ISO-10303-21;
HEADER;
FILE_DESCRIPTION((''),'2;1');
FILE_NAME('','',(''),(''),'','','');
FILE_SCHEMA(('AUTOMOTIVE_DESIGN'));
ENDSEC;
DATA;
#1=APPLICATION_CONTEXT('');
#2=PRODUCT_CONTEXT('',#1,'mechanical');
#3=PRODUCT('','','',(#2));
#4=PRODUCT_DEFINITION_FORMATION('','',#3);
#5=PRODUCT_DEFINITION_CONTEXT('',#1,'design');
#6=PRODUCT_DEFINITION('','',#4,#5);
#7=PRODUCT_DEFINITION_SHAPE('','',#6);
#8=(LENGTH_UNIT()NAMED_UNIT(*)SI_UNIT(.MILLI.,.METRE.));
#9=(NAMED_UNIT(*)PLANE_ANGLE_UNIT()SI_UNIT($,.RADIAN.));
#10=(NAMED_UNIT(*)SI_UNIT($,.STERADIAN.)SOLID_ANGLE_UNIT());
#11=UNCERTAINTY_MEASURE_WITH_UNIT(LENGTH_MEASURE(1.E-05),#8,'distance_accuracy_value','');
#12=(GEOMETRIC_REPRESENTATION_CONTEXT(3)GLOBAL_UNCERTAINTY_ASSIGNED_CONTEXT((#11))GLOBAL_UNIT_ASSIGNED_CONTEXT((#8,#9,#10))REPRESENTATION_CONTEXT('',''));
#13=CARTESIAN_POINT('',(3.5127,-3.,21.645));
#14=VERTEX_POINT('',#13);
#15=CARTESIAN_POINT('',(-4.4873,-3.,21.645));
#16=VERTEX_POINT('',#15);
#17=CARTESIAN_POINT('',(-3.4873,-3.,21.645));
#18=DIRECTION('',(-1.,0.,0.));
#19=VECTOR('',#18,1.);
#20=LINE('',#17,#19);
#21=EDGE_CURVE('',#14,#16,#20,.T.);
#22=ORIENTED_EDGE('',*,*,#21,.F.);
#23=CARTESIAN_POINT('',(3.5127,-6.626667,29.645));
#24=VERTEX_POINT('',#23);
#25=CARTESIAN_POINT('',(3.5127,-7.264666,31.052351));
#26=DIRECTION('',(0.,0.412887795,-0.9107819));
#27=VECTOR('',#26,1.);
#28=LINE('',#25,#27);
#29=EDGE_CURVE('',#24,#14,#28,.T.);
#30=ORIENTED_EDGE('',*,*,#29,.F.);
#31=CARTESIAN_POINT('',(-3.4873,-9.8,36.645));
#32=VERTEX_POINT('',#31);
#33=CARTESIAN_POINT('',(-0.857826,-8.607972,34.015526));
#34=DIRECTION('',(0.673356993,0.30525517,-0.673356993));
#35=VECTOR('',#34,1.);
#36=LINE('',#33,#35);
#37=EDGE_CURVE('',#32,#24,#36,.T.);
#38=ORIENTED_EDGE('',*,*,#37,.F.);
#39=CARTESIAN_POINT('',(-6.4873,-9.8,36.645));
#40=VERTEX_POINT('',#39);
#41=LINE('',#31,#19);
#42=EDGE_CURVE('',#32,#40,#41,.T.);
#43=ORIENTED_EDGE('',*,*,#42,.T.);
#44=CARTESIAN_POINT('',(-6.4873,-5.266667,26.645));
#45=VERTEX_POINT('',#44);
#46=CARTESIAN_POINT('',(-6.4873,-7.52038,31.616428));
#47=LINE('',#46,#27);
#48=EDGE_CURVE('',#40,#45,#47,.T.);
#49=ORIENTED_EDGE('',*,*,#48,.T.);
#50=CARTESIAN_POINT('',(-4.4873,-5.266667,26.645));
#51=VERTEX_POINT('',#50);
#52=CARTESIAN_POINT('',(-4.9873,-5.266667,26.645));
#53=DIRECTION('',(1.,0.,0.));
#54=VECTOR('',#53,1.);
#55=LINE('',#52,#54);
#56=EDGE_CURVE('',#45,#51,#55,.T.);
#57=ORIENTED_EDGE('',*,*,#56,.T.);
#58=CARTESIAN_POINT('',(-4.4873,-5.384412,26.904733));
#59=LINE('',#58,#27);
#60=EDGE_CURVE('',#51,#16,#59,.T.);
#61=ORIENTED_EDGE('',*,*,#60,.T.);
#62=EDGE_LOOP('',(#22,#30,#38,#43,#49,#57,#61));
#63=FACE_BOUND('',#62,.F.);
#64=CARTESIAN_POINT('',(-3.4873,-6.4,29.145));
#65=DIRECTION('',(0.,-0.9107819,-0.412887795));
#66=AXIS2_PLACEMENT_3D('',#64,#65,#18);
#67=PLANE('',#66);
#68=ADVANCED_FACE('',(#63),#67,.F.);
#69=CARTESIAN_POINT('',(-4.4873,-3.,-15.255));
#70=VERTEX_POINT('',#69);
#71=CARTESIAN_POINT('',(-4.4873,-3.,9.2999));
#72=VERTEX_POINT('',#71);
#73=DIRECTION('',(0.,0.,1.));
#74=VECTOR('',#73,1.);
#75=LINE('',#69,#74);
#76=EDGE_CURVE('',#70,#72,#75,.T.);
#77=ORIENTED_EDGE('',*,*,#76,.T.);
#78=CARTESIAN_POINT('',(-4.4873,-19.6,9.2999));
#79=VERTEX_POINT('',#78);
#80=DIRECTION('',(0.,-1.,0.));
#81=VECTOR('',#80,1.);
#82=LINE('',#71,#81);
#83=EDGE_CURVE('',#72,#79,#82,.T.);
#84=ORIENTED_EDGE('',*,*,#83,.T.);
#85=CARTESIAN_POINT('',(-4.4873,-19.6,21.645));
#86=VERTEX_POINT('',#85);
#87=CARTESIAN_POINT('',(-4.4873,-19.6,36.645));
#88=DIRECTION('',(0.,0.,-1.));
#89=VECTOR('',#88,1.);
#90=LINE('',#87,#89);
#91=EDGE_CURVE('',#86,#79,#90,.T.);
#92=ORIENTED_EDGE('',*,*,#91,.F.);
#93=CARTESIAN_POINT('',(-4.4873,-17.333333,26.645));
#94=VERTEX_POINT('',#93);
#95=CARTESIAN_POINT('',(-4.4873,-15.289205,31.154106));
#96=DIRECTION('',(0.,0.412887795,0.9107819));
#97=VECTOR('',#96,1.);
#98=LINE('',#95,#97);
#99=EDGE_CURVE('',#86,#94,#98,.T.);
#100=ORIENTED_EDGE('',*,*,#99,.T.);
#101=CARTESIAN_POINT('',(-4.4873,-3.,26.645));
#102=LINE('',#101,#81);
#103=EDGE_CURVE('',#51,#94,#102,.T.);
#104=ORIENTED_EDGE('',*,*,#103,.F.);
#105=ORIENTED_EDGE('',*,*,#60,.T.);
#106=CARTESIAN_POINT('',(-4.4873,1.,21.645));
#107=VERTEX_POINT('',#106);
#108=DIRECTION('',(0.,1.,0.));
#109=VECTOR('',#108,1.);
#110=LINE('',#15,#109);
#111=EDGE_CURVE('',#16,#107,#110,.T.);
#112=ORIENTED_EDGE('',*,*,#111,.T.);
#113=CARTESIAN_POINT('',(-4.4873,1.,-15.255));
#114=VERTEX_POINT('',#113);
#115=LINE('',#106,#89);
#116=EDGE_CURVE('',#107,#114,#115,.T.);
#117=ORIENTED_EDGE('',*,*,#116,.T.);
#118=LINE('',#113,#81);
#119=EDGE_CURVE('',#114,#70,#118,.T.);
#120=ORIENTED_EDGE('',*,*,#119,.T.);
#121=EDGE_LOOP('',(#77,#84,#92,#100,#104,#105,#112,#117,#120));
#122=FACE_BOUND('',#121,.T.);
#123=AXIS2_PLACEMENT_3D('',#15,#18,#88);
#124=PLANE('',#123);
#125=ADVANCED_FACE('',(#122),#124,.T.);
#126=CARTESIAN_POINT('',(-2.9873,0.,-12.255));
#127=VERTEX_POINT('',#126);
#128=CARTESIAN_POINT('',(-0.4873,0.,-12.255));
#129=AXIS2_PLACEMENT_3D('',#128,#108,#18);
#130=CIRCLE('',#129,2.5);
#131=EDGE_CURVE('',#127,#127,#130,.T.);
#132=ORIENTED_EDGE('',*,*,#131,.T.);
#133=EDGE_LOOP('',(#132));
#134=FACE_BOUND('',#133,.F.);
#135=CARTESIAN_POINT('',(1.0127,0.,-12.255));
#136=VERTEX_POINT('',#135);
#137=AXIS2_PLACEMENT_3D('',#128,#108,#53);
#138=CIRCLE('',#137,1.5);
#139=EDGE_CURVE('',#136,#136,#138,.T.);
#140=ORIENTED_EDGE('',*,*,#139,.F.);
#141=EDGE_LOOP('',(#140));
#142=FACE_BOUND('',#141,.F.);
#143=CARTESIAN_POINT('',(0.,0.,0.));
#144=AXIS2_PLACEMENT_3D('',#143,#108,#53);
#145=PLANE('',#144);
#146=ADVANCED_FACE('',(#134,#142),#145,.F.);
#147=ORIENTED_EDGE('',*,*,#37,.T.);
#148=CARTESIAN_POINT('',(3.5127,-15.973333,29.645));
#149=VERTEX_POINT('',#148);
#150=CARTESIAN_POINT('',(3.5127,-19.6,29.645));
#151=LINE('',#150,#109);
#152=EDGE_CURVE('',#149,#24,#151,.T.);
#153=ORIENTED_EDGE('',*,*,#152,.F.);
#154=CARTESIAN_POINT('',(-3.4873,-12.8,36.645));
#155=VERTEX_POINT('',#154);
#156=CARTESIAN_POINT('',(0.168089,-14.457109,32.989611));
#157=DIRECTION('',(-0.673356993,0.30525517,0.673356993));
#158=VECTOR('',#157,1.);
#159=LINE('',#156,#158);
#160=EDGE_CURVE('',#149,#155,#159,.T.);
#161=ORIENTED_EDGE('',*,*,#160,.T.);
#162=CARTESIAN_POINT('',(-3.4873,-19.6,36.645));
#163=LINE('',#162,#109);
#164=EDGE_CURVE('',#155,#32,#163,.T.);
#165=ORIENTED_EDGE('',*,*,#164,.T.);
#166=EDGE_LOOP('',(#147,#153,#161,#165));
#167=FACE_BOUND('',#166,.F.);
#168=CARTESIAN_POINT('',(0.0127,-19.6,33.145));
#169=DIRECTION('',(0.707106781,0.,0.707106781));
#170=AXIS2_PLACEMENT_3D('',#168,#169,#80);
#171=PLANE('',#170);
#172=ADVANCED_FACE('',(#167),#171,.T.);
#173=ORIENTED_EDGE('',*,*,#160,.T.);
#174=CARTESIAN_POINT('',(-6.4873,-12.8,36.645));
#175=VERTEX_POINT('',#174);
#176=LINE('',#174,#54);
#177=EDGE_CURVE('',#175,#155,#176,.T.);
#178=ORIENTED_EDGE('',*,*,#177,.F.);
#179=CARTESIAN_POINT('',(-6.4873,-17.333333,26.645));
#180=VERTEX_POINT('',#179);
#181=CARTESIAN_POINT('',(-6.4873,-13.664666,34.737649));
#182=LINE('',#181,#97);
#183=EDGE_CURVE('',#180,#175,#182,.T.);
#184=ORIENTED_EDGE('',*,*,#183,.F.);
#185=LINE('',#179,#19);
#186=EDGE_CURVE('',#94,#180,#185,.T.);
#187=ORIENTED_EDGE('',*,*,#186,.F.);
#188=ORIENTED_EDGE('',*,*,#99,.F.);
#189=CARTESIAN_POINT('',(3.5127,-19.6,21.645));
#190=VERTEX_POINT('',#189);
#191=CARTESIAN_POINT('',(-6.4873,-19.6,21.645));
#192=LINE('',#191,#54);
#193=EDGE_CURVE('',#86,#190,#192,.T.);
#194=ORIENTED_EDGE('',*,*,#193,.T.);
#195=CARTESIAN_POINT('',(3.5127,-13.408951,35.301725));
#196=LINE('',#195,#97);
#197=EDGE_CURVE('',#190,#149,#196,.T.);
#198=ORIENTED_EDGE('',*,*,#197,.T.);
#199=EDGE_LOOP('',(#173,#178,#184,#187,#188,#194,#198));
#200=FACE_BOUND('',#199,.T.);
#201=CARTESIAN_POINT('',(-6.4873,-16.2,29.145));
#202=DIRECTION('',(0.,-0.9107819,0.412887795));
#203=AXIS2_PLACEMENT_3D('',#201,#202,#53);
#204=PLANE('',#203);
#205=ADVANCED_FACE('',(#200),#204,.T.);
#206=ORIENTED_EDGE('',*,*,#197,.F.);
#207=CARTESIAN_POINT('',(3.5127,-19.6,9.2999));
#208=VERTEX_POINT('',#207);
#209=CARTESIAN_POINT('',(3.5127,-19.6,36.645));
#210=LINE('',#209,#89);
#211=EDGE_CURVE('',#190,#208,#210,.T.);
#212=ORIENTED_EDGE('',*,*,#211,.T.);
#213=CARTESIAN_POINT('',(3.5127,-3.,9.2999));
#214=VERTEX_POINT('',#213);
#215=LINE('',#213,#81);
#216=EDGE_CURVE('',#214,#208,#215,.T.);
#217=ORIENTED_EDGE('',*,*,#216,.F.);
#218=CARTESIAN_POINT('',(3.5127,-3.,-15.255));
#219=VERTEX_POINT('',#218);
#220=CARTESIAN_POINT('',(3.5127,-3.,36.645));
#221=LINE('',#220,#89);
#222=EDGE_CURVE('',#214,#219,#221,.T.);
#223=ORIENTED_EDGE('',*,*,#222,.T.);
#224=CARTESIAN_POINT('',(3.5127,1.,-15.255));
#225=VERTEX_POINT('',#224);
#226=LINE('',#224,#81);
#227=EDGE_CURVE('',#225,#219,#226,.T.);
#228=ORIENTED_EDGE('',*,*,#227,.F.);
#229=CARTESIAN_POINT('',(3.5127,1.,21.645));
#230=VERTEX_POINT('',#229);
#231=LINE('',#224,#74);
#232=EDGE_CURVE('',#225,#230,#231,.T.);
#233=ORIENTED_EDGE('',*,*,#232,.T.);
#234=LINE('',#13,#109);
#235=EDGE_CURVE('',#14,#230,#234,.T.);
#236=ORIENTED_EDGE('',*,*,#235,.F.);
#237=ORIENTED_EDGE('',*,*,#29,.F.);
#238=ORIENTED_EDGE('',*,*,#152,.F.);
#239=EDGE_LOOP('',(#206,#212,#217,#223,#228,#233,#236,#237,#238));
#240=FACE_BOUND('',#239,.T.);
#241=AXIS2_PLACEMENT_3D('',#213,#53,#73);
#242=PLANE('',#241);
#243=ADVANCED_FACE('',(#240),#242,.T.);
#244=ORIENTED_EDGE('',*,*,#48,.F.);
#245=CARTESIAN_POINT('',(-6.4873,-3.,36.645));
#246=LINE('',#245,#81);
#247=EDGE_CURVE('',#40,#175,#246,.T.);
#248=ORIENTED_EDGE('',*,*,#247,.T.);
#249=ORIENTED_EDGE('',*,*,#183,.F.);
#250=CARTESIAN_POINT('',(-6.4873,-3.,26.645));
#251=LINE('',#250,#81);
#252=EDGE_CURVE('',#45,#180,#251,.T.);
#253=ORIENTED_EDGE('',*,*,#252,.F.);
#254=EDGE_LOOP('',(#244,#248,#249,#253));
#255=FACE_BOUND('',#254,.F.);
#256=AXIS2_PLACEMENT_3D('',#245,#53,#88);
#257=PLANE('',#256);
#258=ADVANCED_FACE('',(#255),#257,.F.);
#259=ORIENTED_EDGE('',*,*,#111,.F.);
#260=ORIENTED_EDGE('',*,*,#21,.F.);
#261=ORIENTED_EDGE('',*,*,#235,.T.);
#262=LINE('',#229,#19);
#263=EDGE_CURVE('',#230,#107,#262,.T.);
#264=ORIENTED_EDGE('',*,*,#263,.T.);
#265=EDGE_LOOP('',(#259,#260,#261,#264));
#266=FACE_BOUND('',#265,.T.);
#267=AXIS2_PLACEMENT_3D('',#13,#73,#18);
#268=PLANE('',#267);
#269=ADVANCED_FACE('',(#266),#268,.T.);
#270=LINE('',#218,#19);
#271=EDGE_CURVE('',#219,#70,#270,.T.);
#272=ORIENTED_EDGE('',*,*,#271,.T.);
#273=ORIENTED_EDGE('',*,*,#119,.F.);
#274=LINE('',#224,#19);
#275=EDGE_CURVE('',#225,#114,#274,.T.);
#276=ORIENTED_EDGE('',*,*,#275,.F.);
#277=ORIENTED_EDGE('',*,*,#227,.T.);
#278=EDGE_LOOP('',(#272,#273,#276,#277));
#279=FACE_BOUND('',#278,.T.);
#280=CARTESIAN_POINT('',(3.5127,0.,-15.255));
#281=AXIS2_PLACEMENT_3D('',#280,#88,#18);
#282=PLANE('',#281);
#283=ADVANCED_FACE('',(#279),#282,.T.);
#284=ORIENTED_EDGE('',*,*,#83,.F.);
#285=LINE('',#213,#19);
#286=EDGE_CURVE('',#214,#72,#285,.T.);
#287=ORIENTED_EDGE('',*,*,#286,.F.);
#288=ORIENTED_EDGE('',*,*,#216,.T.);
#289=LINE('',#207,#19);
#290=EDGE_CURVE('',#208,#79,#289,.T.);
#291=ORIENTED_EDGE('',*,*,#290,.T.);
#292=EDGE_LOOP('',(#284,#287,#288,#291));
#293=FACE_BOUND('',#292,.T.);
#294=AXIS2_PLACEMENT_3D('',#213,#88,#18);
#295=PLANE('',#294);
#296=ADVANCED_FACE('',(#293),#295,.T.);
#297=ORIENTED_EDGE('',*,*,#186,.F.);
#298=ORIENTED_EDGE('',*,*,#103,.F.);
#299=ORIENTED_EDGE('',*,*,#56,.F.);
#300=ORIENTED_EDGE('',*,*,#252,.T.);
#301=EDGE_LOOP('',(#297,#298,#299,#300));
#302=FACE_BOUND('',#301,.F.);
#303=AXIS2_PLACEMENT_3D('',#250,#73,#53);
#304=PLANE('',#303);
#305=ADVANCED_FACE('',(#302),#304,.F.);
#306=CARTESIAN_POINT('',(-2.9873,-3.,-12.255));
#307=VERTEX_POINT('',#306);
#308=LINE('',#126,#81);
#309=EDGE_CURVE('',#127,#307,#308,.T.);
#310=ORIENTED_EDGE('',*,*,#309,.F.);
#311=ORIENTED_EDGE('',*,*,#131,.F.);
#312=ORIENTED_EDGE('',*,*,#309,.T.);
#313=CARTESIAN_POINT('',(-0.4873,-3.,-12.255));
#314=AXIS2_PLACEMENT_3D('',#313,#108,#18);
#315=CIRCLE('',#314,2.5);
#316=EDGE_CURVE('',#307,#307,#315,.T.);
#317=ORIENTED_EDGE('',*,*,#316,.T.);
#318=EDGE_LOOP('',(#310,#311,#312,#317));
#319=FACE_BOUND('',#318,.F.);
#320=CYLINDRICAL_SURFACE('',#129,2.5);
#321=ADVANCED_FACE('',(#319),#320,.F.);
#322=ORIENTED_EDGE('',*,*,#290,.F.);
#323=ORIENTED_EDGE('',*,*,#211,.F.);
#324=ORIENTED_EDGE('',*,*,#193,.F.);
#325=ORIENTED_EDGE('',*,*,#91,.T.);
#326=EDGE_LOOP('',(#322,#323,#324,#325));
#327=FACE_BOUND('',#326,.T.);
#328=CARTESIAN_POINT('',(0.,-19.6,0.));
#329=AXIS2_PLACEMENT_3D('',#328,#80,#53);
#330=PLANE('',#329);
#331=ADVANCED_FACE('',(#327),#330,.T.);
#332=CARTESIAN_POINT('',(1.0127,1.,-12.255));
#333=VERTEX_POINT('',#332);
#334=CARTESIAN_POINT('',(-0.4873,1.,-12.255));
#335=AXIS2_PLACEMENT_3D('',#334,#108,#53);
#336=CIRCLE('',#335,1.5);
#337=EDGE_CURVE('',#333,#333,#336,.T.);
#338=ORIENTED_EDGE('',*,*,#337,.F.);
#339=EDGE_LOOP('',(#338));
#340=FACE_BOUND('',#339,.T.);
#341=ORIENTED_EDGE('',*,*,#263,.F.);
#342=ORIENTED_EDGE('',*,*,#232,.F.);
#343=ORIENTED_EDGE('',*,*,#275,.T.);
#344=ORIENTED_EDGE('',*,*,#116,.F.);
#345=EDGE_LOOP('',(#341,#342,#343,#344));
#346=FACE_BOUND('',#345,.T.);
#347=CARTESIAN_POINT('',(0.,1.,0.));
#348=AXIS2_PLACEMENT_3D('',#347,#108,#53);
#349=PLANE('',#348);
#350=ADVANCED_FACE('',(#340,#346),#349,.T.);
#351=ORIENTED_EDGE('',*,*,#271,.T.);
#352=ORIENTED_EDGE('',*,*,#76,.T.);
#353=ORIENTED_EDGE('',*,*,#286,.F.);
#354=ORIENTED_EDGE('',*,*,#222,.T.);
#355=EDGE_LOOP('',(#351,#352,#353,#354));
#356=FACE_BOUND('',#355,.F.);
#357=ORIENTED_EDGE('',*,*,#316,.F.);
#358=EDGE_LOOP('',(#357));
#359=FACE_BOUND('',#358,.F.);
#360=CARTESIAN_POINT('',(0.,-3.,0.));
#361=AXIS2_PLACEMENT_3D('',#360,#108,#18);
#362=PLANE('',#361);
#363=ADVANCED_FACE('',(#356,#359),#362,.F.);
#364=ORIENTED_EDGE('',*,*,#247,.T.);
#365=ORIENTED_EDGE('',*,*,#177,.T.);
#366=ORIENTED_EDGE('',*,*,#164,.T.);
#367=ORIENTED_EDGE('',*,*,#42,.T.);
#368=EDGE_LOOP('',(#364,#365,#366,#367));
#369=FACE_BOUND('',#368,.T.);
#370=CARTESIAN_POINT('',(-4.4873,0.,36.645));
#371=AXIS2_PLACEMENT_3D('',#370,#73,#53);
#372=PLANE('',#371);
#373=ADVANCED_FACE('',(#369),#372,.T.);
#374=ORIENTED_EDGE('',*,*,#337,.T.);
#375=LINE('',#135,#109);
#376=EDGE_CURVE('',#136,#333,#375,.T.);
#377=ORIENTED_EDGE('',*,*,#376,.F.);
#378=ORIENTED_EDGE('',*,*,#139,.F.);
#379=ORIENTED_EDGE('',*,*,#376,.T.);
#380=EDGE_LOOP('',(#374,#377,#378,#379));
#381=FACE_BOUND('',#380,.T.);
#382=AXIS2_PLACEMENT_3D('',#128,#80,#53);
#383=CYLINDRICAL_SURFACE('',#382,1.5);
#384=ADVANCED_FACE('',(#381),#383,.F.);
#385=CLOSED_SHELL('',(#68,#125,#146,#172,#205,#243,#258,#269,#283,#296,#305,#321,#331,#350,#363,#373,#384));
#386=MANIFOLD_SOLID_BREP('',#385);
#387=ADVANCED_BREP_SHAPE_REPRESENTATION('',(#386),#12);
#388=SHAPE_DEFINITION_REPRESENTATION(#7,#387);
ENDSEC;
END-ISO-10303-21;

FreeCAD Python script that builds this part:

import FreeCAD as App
import Part
import Sketcher
Q = App.Units.Quantity


def edges_at(feature, points):
    """Names of the edges that pass closest to the given points."""
    edges = feature.Shape.Edges
    near = lambda p: min(range(len(edges)), key=lambda i: edges[i].distToShape(Part.Vertex(*p))[0])
    return sorted({f"Edge{near(p) + 1}" for p in points})


def add_polygon(sketch, points):
    """Adds a closed chain of lines whose ends are joined by coincident constraints."""
    first, n = sketch.GeometryCount, len(points)
    for a, b in zip(points, points[1:] + points[:1]):
        sketch.addGeometry(Part.LineSegment(App.Vector(*a, 0), App.Vector(*b, 0)), False)
    for i in range(n):
        sketch.addConstraint(Sketcher.Constraint("Coincident", first + i, 2, first + (i + 1) % n, 1))

doc = App.newDocument("Part")
body = doc.addObject("PartDesign::Body", "Body")
body.AllowCompound = True

# Sketch on XZ plane
sketch1 = doc.addObject("Sketcher::SketchObject", "Sketch")
body.addObject(sketch1)
sketch1.AttachmentSupport = (doc.XZ_Plane, [""])
sketch1.MapMode = "FlatFace"
add_polygon(sketch1, [(-4.5, -15.3), (-4.5, 36.6), (3.5, 36.6), (3.5, -15.3)])  # lines 0-3
sketch1.addGeometry(Part.Circle(App.Vector(-0.5, -12.3, 0), App.Vector(0, 0, 1), 2.5), False)  # 4
sketch1.addConstraint(Sketcher.Constraint("Vertical", 0))
sketch1.addConstraint(Sketcher.Constraint("Horizontal", 1))
sketch1.addConstraint(Sketcher.Constraint("Vertical", 2))
sketch1.addConstraint(Sketcher.Constraint("Horizontal", 3))
sketch1.addConstraint(Sketcher.Constraint("Diameter", 4, Q("5 mm")))
sketch1.addConstraint(Sketcher.Constraint("DistanceX", 0, 2, 4, 3, Q("4 mm")))
sketch1.addConstraint(Sketcher.Constraint("DistanceX", 4, 3, 1, 2, Q("4 mm")))
sketch1.addConstraint(Sketcher.Constraint("DistanceY", 2, 2, 4, 3, Q("3 mm")))
sketch1.addConstraint(Sketcher.Constraint("DistanceY", 0, 1, 0, 2, Q("51.9 mm")))
sketch1.addConstraint(Sketcher.Constraint("DistanceY", 4, 3, -1, 1, Q("12.255 mm")))
sketch1.addConstraint(Sketcher.Constraint("DistanceX", 4, 3, -1, 1, Q("0.4873 mm")))
pad1 = doc.addObject("PartDesign::Pad", "Pad")
body.addObject(pad1)
pad1.Profile = sketch1
pad1.Length = 3

# Sketch on XZ plane
sketch2 = doc.addObject("Sketcher::SketchObject", "Sketch001")
body.addObject(sketch2)
sketch2.AttachmentSupport = (doc.XZ_Plane, [""])
sketch2.MapMode = "FlatFace"
add_polygon(sketch2, [(-4.5, 36.6), (3.5, 36.6), (3.5, -15.3), (-4.5, -15.3)])  # lines 0-3
sketch2.addGeometry(Part.Circle(App.Vector(-0.5, -12.3, 0), App.Vector(0, 0, 1), 1.5), False)  # 4
sketch2.addConstraint(Sketcher.Constraint("Horizontal", 0))
sketch2.addConstraint(Sketcher.Constraint("Vertical", 1))
sketch2.addConstraint(Sketcher.Constraint("Horizontal", 2))
sketch2.addConstraint(Sketcher.Constraint("Vertical", 3))
sketch2.addConstraint(Sketcher.Constraint("Diameter", 4, Q("3 mm")))
sketch2.addConstraint(Sketcher.Constraint("DistanceY", 1, 2, 4, 3, Q("3 mm")))
sketch2.addConstraint(Sketcher.Constraint("DistanceX", 0, 1, 0, 2, Q("8 mm")))
sketch2.addConstraint(Sketcher.Constraint("DistanceY", 1, 2, 1, 1, Q("51.9 mm")))
sketch2.addConstraint(Sketcher.Constraint("DistanceX", 4, 3, 0, 2, Q("4 mm")))
sketch2.addConstraint(Sketcher.Constraint("DistanceY", 4, 3, -1, 1, Q("12.255 mm")))
sketch2.addConstraint(Sketcher.Constraint("DistanceX", 4, 3, -1, 1, Q("0.4873 mm")))
pad2 = doc.addObject("PartDesign::Pad", "Pad001")
body.addObject(pad2)
pad2.Profile = sketch2
pad2.Length = 1
pad2.Reversed = True

# Sketch on XZ plane
sketch3 = doc.addObject("Sketcher::SketchObject", "Sketch002")
body.addObject(sketch3)
sketch3.AttachmentSupport = (doc.XZ_Plane, [""])
sketch3.MapMode = "FlatFace"
sketch3.AttachmentOffset = App.Placement(App.Vector(0, 0, 3), App.Rotation())
add_polygon(sketch3, [(3.5, 36.6), (-6.5, 36.6), (-6.5, 26.6), (-4.5, 26.6), (-4.5, 9.3), (3.5, 9.3)])  # lines 0-5
sketch3.addConstraint(Sketcher.Constraint("Horizontal", 0))
sketch3.addConstraint(Sketcher.Constraint("Vertical", 1))
sketch3.addConstraint(Sketcher.Constraint("Horizontal", 2))
sketch3.addConstraint(Sketcher.Constraint("Vertical", 3))
sketch3.addConstraint(Sketcher.Constraint("Horizontal", 4))
sketch3.addConstraint(Sketcher.Constraint("Vertical", 5))
sketch3.addConstraint(Sketcher.Constraint("Equal", 0, 1))
sketch3.addConstraint(Sketcher.Constraint("DistanceX", 0, 2, 0, 1, Q("10 mm")))
sketch3.addConstraint(Sketcher.Constraint("DistanceX", 2, 1, 2, 2, Q("2 mm")))
sketch3.addConstraint(Sketcher.Constraint("DistanceY", -1, 1, 3, 2, Q("9.3 mm")))
sketch3.addConstraint(Sketcher.Constraint("DistanceY", 3, 2, 3, 1, Q("17.345 mm")))
sketch3.addConstraint(Sketcher.Constraint("DistanceX", 0, 2, -1, 1, Q("6.4873 mm")))
pad3 = doc.addObject("PartDesign::Pad", "Pad002")
body.addObject(pad3)
pad3.Profile = sketch3
pad3.Length = 16.6
doc.recompute()

chamfer = doc.addObject("PartDesign::Chamfer", "Chamfer")
body.addObject(chamfer)
chamfer.Base = (pad3, edges_at(pad3, [(3.513, -9.3, 36.645)]))
chamfer.Size = 7
doc.recompute()

chamfer2 = doc.addObject("PartDesign::Chamfer", "Chamfer001")
body.addObject(chamfer2)
chamfer2.Base = (chamfer, edges_at(chamfer, [(-4.987, -19.6, 36.645)]))
chamfer2.ChamferType = "Two distances"
chamfer2.Size = 15
chamfer2.Size2 = 6.8
chamfer2.FlipDirection = True

# Sketch on XZ plane
sketch4 = doc.addObject("Sketcher::SketchObject", "Sketch003")
body.addObject(sketch4)
sketch4.AttachmentSupport = (doc.XZ_Plane, [""])
sketch4.MapMode = "FlatFace"
sketch4.AttachmentOffset = App.Placement(App.Vector(0, 0, -1), App.Rotation())
add_polygon(sketch4, [(-6, 37), (4, 37), (4, 9), (-6, 9)])  # lines 0-3
sketch4.addConstraint(Sketcher.Constraint("Horizontal", 0))
sketch4.addConstraint(Sketcher.Constraint("Vertical", 1))
sketch4.addConstraint(Sketcher.Constraint("Horizontal", 2))
sketch4.addConstraint(Sketcher.Constraint("Vertical", 3))
sketch4.addConstraint(Sketcher.Constraint("DistanceX", 0, 1, 0, 2, Q("10 mm")))
sketch4.addConstraint(Sketcher.Constraint("DistanceY", -1, 1, 1, 2, Q("9.3 mm")))
sketch4.addConstraint(Sketcher.Constraint("DistanceY", 1, 2, 1, 1, Q("27.345 mm")))
sketch4.addConstraint(Sketcher.Constraint("DistanceX", -1, 1, 0, 2, Q("3.5127 mm")))
pocket1 = doc.addObject("PartDesign::Pocket", "Pocket")
body.addObject(pocket1)
pocket1.Profile = sketch4
pocket1.Length = 4
pocket1.Reversed = True
doc.recompute()

chamfer3 = doc.addObject("PartDesign::Chamfer", "Chamfer002")
body.addObject(chamfer3)
chamfer3.Base = (pocket1, edges_at(pocket1, [(-4.987, -3, 36.645)]))
chamfer3.ChamferType = "Two distances"
chamfer3.Size = 6.8
chamfer3.Size2 = 15

# Sketch on XZ plane
sketch5 = doc.addObject("Sketcher::SketchObject", "Sketch004")
body.addObject(sketch5)
sketch5.AttachmentSupport = (doc.XZ_Plane, [""])
sketch5.MapMode = "FlatFace"
sketch5.AttachmentOffset = App.Placement(App.Vector(0, 0, 3), App.Rotation())
add_polygon(sketch5, [(-4, 22), (4, 22), (4, 9), (-4, 9)])  # lines 0-3
sketch5.addConstraint(Sketcher.Constraint("Horizontal", 0))
sketch5.addConstraint(Sketcher.Constraint("Vertical", 1))
sketch5.addConstraint(Sketcher.Constraint("Horizontal", 2))
sketch5.addConstraint(Sketcher.Constraint("Vertical", 3))
sketch5.addConstraint(Sketcher.Constraint("DistanceX", 0, 1, 0, 2, Q("8 mm")))
sketch5.addConstraint(Sketcher.Constraint("DistanceY", -1, 1, 1, 2, Q("9.3 mm")))
sketch5.addConstraint(Sketcher.Constraint("DistanceY", 1, 2, 1, 1, Q("12.345 mm")))
sketch5.addConstraint(Sketcher.Constraint("DistanceX", -1, 1, 0, 2, Q("3.5127 mm")))
pad4 = doc.addObject("PartDesign::Pad", "Pad003")
body.addObject(pad4)
pad4.Profile = sketch5
pad4.Length = 4
pad4.Reversed = True

doc.recompute()
